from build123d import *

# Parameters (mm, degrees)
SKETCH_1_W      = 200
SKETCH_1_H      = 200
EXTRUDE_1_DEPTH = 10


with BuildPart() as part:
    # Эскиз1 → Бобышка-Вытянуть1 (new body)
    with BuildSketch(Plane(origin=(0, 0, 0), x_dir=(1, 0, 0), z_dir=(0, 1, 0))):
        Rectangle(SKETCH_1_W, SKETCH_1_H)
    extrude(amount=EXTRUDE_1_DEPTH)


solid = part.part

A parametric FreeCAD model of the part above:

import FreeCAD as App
import Part
import Sketcher

V = App.Vector

doc = App.newDocument("Part")
body = doc.addObject("PartDesign::Body", "Body")

# Sketch on XZ plane
sketch1 = doc.addObject("Sketcher::SketchObject", "Sketch")
body.addObject(sketch1)
sketch1.AttachmentSupport = (doc.XZ_Plane, [""])
sketch1.MapMode = "FlatFace"
sketch1.addGeometry([
    Part.LineSegment(V(-100, -100, 0), V(-100, 100, 0)),
    Part.LineSegment(V(-100, 100, 0), V(100, 100, 0)),
    Part.LineSegment(V(100, 100, 0), V(100, -100, 0)),
    Part.LineSegment(V(100, -100, 0), V(-100, -100, 0)),
], False)
sketch1.addConstraint([
    Sketcher.Constraint("Coincident", 0, 2, 1, 1),
    Sketcher.Constraint("Coincident", 1, 2, 2, 1),
    Sketcher.Constraint("Coincident", 2, 2, 3, 1),
    Sketcher.Constraint("Coincident", 3, 2, 0, 1),
    Sketcher.Constraint("Vertical", 0),
    Sketcher.Constraint("Horizontal", 1),
    Sketcher.Constraint("Vertical", 2),
    Sketcher.Constraint("Horizontal", 3),
    Sketcher.Constraint("Symmetric", 0, 2, 2, 2, -1, 1),
    Sketcher.Constraint("Equal", 3, 0),
    Sketcher.Constraint("DistanceX", 1, 1, 1, 2, 200.0),
])
pad1 = doc.addObject("PartDesign::Pad", "Pad")
body.addObject(pad1)
pad1.Profile = sketch1
pad1.Length = 10
pad1.Reversed = True

doc.recompute()
